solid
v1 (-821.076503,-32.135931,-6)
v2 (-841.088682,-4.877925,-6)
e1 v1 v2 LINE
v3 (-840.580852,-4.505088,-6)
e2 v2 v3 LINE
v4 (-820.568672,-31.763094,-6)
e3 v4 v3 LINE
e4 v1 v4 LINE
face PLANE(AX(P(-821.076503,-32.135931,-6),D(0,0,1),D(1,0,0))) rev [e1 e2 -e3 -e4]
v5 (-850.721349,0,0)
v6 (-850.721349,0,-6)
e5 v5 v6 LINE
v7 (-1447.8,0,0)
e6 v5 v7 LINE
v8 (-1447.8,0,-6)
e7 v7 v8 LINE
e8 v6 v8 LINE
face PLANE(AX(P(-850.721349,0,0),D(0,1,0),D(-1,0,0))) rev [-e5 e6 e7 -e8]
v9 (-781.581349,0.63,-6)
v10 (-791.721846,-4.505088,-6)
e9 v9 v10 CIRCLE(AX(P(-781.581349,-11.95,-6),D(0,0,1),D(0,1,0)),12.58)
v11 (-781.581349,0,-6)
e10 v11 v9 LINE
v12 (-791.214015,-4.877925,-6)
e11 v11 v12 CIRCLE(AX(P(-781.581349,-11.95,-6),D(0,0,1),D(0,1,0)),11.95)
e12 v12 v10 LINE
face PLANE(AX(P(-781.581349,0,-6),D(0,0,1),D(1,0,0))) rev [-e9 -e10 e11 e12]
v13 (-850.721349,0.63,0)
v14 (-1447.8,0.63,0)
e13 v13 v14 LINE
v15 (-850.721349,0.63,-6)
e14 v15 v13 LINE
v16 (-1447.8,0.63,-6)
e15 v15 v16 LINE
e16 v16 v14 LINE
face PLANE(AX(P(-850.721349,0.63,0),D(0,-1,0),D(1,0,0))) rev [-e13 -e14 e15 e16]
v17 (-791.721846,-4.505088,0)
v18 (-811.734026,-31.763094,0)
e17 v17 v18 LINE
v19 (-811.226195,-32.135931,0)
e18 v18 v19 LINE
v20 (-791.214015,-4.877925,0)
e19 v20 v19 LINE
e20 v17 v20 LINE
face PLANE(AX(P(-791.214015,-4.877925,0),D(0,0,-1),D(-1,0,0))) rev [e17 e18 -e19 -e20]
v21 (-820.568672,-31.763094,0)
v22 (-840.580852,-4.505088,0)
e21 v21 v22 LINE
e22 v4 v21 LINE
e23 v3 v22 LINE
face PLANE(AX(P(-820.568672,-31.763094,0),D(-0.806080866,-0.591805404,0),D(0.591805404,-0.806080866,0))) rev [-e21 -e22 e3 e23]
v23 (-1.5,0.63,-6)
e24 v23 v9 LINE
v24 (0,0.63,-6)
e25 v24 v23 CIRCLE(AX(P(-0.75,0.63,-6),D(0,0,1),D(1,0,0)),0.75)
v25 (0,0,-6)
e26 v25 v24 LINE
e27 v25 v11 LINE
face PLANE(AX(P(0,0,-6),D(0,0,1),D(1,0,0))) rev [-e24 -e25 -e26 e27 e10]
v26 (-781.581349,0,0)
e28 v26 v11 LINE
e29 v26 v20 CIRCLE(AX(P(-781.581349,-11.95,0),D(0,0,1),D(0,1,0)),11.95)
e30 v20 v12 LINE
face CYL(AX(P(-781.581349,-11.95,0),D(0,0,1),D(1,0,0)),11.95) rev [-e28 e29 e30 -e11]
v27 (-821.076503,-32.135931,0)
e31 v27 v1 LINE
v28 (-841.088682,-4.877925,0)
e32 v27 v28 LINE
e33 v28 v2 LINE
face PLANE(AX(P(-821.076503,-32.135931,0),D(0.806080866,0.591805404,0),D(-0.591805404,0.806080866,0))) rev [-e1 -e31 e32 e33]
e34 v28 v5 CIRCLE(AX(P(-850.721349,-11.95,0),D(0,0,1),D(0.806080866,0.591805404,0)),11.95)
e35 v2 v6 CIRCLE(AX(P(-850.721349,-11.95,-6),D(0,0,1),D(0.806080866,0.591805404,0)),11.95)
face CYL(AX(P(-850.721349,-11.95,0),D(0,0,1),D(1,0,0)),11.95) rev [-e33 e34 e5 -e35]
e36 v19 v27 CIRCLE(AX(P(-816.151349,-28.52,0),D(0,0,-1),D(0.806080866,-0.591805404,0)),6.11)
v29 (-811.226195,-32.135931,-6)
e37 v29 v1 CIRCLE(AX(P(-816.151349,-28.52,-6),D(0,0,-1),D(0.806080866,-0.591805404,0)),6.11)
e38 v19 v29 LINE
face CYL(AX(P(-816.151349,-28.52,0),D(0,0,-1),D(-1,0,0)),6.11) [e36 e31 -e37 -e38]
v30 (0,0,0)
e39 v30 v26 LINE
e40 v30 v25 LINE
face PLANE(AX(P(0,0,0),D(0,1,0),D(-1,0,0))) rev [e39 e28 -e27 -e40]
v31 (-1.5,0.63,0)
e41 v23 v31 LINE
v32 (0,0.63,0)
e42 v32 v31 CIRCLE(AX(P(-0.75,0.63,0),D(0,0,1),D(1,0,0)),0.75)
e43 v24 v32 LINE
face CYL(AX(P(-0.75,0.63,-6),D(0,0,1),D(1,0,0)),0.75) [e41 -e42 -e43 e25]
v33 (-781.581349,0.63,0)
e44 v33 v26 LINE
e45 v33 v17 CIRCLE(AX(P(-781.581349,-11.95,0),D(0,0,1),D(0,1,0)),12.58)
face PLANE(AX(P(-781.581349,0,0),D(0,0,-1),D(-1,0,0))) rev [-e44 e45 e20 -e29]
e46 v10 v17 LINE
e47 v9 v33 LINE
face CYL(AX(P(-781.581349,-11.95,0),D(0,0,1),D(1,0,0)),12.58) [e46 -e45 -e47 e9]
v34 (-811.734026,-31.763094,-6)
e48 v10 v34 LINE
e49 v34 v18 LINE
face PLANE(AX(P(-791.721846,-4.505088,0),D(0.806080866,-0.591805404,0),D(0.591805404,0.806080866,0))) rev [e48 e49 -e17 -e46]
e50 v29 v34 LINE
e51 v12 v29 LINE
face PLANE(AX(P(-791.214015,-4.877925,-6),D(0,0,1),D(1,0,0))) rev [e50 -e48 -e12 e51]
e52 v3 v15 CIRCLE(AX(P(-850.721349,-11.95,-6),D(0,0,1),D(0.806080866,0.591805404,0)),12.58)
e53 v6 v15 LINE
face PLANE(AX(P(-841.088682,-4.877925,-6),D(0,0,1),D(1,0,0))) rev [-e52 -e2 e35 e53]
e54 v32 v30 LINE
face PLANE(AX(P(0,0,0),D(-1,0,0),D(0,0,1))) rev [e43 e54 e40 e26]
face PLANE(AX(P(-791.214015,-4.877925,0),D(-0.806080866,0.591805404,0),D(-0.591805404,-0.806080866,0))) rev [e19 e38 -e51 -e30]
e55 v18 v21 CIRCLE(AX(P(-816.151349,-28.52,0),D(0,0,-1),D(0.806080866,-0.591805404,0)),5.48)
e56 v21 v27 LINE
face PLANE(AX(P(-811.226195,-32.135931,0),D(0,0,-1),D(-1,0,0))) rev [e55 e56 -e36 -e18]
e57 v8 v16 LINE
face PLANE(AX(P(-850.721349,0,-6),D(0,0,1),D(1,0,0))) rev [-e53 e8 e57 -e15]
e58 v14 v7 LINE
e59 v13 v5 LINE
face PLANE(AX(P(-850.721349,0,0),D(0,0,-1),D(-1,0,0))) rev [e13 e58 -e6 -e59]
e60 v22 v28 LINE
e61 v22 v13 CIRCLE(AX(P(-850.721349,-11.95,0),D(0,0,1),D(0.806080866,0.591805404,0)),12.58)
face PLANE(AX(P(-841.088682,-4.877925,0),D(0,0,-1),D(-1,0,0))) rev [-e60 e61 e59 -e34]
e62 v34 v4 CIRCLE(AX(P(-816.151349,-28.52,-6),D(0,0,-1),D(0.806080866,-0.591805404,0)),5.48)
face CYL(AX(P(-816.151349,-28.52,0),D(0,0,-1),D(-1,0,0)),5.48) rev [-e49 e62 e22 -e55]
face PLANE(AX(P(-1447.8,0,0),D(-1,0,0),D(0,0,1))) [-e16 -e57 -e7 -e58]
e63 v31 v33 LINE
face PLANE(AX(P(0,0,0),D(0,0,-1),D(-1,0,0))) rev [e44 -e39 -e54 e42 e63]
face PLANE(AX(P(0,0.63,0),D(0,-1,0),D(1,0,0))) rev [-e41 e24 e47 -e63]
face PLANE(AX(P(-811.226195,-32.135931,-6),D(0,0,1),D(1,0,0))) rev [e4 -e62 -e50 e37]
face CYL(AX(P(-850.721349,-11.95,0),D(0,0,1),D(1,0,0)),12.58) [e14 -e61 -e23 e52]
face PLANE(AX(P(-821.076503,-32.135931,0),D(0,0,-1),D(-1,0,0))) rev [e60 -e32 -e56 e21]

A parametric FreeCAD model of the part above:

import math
import FreeCAD as App
import Part
import Sketcher
from FreeCAD import Vector


def add_polygon(sketch, points):
    """Adds a closed chain of lines whose ends are joined by coincident constraints."""
    first, n = sketch.GeometryCount, len(points)
    for a, b in zip(points, points[1:] + points[:1]):
        sketch.addGeometry(Part.LineSegment(App.Vector(*a, 0), App.Vector(*b, 0)), False)
    for i in range(n):
        sketch.addConstraint(Sketcher.Constraint("Coincident", first + i, 2, first + (i + 1) % n, 1))

doc = App.newDocument("Part")
params = doc.addObject("Spreadsheet::Sheet", "Params")
for row, (alias, value) in enumerate([
    ("sketch1_height", "6 mm"),
    ("sketch1_width", "0.63 mm"),
    ("sketch2_radius", "11.95 mm"),
    ("sketch2_radius2", "6.11 mm"),
    ("sketch3_radius", "0.75 mm"),
    ("sketch3_height", "0.63 mm"),
], start=1):
    params.set(f"A{row}", alias)
    params.set(f"B{row}", "=" + value)
    params.setAlias(f"B{row}", alias)

body = doc.addObject("PartDesign::Body", "Body")

# Sketch on YZ plane
sketch1 = body.newObject("Sketcher::SketchObject", "Sketch")
sketch1.AttachmentSupport = (doc.getObject("YZ_Plane"), [""])
sketch1.MapMode = "FlatFace"
add_polygon(sketch1, [(0.6, 0), (0, 0), (0, -6), (0.6, -6)])  # lines 0-3
sketch1.addConstraint([
    Sketcher.Constraint("Horizontal", 0),
    Sketcher.Constraint("Vertical", 1),
    Sketcher.Constraint("Horizontal", 2),
    Sketcher.Constraint("Vertical", 3),
    Sketcher.Constraint("Coincident", 0, 2, -1, 1),
    Sketcher.Constraint("DistanceY", 1, 2, 1, 1, 6.0),
    Sketcher.Constraint("DistanceX", 0, 2, 0, 1, 0.63),
])
sketch1.setExpression("Constraints[9]", "Params.sketch1_height")
sketch1.setExpression("Constraints[10]", "Params.sketch1_width")

# Sketch on XY plane
sketch2 = body.newObject("Sketcher::SketchObject", "Sketch001")
sketch2.AttachmentSupport = (doc.getObject("XY_Plane"), [""])
sketch2.MapMode = "FlatFace"
sketch2.addGeometry([
    Part.LineSegment(Vector(0, 0, 0), Vector(-782, 0, 0)),  # 0
    Part.ArcOfCircle(Part.Circle(Vector(-782, -12, 0), Vector(0, 0, 1), 12), math.radians(90), math.radians(144)),  # 1
    Part.LineSegment(Vector(-791, -5, 0), Vector(-811, -32, 0)),  # 2
    Part.ArcOfCircle(Part.Circle(Vector(-816, -29, 0), Vector(0, 0, 1), 6), math.radians(-144), math.radians(-36)),  # 3
    Part.LineSegment(Vector(-821, -32, 0), Vector(-841, -5, 0)),  # 4
    Part.ArcOfCircle(Part.Circle(Vector(-851, -12, 0), Vector(0, 0, 1), 12), math.radians(36), math.radians(90)),  # 5
    Part.LineSegment(Vector(-851, 0, 0), Vector(-1448, 0, 0)),  # 6
], False)
sketch2.addConstraint([
    Sketcher.Constraint("Tangent", 0, 2, 1, 1),
    Sketcher.Constraint("Tangent", 1, 2, 2, 1),
    Sketcher.Constraint("Tangent", 2, 2, 3, 2),
    Sketcher.Constraint("Tangent", 3, 1, 4, 1),
    Sketcher.Constraint("Tangent", 4, 2, 5, 1),
    Sketcher.Constraint("Tangent", 5, 2, 6, 1),
    Sketcher.Constraint("Horizontal", 0),
    Sketcher.Constraint("Horizontal", 6),
    Sketcher.Constraint("Coincident", 0, 1, -1, 1),
    Sketcher.Constraint("Equal", 1, 5),
    Sketcher.Constraint("PointOnObject", 5, 2, -1),
    Sketcher.Constraint("Horizontal", 2, 2, 3, 1),
    Sketcher.Constraint("Radius", 1, 11.95),
    Sketcher.Constraint("Radius", 3, 6.11),
    Sketcher.Constraint("DistanceX", 6, 2, -1, 1, 1447.8),
    Sketcher.Constraint("DistanceY", 3, 3, -1, 1, 28.52),
    Sketcher.Constraint("DistanceX", 3, 3, 1, 3, 34.57),
    Sketcher.Constraint("DistanceX", 0, 2, 0, 1, 781.581349),
])
sketch2.setExpression("Constraints[12]", "Params.sketch2_radius")
sketch2.setExpression("Constraints[13]", "Params.sketch2_radius2")
doc.recompute()

additivepipe = body.newObject("PartDesign::AdditivePipe", "AdditivePipe")
additivepipe.Profile = sketch1
additivepipe.Spine = (sketch2, ["Edge1", "Edge2", "Edge3", "Edge4", "Edge5", "Edge6", "Edge7"])

# Sketch on XY plane
sketch3 = body.newObject("Sketcher::SketchObject", "Sketch002")
sketch3.AttachmentSupport = (doc.getObject("XY_Plane"), [""])
sketch3.MapMode = "FlatFace"
sketch3.addGeometry([
    Part.LineSegment(Vector(-1.5, 0.6, 0), Vector(-1.5, 0, 0)),
    Part.LineSegment(Vector(-1.5, 0, 0), Vector(0, 0, 0)),
    Part.LineSegment(Vector(0, 0, 0), Vector(0, 0.6, 0)),
    Part.ArcOfCircle(Part.Circle(Vector(-0.8, 0.6, 0), Vector(0, 0, 1), 0.8), math.radians(0), math.radians(180)),
], False)
sketch3.addConstraint([
    Sketcher.Constraint("Coincident", 0, 2, 1, 1),
    Sketcher.Constraint("Coincident", 1, 2, 2, 1),
    Sketcher.Constraint("Tangent", 2, 2, 3, 1),
    Sketcher.Constraint("Tangent", 3, 2, 0, 1),
    Sketcher.Constraint("Vertical", 0),
    Sketcher.Constraint("Horizontal", 1),
    Sketcher.Constraint("Vertical", 2),
    Sketcher.Constraint("Coincident", 1, 2, -1, 1),
    Sketcher.Constraint("Radius", 3, 0.75),
    Sketcher.Constraint("DistanceY", 0, 2, 0, 1, 0.63),
])
sketch3.setExpression("Constraints[8]", "Params.sketch3_radius")
sketch3.setExpression("Constraints[9]", "Params.sketch3_height")
pad1 = body.newObject("PartDesign::Pad", "Pad")
pad1.Profile = sketch3
pad1.Type = "UpToLast"
pad1.Reversed = True

doc.recompute()
